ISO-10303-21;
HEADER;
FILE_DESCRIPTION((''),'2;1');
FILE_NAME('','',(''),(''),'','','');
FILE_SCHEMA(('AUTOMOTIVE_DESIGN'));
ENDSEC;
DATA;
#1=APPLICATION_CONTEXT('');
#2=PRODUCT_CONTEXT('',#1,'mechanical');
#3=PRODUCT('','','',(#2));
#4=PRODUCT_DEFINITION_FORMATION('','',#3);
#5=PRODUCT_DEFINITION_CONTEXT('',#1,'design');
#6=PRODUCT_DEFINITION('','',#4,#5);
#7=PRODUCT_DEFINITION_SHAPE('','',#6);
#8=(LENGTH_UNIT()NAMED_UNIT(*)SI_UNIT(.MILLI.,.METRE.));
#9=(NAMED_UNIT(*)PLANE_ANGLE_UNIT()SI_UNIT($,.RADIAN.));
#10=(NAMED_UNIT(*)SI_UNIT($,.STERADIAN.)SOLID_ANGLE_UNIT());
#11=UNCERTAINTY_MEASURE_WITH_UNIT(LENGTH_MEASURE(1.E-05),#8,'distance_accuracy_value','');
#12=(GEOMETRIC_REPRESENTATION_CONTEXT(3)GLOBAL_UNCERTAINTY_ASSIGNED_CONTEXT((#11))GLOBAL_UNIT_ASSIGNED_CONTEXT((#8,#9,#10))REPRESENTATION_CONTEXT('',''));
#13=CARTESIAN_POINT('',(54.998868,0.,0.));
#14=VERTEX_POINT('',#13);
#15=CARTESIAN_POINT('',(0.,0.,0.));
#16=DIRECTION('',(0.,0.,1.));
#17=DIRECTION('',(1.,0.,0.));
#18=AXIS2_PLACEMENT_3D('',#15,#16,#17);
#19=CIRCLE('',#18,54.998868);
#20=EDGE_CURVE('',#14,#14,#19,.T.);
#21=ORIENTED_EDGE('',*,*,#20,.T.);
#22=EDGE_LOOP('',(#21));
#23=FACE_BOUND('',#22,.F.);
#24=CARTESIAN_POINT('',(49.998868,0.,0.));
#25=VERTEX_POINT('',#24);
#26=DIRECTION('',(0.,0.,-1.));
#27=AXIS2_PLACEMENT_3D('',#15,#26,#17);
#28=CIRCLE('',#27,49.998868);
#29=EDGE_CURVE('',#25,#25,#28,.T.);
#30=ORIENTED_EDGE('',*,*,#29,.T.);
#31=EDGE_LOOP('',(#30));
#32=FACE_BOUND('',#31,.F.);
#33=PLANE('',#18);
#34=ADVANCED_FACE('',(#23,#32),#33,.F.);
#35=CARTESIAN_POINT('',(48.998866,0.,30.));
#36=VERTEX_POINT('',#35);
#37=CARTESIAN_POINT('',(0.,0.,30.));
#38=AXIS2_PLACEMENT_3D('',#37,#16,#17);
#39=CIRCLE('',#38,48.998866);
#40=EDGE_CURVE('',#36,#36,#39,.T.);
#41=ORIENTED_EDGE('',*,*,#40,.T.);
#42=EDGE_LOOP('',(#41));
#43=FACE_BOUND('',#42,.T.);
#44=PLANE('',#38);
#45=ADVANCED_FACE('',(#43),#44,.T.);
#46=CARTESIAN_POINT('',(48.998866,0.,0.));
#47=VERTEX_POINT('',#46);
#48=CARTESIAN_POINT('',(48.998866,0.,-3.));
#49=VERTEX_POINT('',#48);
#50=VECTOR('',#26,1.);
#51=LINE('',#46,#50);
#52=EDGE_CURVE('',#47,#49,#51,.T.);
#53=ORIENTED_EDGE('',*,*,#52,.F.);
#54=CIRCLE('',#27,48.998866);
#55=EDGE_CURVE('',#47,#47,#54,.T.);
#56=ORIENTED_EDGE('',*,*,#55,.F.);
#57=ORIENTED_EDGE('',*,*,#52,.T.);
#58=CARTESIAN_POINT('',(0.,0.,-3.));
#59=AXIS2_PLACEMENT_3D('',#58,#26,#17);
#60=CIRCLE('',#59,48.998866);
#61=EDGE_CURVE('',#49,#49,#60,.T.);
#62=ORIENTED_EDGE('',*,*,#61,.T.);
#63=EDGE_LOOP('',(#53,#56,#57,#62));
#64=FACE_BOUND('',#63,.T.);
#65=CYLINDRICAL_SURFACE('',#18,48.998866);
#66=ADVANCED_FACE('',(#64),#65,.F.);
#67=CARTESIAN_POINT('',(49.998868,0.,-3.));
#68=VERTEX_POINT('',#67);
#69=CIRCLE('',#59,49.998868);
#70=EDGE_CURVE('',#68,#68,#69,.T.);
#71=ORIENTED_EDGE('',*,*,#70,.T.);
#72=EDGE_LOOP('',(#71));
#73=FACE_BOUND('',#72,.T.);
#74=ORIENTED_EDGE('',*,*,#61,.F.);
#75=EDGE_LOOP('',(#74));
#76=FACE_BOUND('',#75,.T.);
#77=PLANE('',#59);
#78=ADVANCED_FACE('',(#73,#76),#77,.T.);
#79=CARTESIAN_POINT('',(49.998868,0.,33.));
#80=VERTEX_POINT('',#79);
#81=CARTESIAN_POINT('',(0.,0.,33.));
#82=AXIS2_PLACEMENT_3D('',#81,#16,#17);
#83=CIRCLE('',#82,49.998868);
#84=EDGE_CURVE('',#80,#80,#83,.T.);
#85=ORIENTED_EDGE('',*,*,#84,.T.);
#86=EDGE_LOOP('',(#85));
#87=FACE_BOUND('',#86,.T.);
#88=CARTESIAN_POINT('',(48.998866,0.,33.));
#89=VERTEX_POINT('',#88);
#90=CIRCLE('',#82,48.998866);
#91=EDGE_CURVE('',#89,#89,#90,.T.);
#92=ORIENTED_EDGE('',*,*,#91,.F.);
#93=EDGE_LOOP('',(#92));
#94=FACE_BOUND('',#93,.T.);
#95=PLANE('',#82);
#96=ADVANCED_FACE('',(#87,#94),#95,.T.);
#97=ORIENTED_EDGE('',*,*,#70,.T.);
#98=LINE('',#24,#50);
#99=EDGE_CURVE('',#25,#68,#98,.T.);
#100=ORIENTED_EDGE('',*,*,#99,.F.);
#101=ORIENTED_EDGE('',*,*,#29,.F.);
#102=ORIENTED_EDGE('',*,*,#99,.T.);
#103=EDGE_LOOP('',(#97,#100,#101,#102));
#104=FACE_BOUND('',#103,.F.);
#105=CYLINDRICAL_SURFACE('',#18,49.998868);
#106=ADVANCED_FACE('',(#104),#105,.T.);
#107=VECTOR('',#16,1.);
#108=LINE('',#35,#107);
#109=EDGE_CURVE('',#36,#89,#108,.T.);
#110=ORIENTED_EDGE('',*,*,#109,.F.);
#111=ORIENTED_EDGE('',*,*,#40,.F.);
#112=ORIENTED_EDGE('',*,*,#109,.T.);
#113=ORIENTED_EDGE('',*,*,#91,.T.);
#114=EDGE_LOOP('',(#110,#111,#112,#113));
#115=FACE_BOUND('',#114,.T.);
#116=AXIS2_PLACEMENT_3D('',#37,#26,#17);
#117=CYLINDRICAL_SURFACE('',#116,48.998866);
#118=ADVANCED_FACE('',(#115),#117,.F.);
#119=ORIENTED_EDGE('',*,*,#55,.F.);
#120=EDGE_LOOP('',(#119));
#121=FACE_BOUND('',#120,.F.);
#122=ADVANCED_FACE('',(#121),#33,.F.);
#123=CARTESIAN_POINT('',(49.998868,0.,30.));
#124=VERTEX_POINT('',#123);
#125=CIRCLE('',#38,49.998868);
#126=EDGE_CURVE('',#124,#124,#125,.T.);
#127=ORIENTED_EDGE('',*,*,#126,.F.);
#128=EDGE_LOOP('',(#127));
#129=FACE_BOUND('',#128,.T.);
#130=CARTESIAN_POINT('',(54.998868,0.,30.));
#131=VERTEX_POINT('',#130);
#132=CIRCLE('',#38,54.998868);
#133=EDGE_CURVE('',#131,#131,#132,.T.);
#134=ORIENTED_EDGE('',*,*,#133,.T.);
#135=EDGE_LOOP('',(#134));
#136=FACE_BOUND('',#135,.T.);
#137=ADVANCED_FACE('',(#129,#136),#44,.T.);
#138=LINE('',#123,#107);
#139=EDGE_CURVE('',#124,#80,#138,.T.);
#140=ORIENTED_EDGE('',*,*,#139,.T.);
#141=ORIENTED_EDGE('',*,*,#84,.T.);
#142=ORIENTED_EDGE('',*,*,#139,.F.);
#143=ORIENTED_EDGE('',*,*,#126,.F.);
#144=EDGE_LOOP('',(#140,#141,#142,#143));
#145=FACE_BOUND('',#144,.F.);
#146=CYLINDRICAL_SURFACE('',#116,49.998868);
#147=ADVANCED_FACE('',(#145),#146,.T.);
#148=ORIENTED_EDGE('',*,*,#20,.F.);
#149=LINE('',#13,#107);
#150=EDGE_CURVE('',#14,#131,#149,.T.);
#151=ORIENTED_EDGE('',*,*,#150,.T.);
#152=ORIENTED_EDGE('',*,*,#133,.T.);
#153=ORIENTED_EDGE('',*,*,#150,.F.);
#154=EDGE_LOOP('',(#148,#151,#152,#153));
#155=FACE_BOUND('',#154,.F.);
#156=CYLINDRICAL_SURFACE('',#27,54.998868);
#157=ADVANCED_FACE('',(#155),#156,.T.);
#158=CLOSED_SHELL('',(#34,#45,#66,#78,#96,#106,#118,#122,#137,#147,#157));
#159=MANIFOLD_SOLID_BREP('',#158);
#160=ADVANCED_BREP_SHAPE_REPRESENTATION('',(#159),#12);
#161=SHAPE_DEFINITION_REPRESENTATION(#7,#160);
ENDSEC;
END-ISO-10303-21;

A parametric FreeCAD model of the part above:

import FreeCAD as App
import Part
import Sketcher

doc = App.newDocument("Part")
body = doc.addObject("PartDesign::Body", "Body")

# Sketch on XY plane
sketch1 = doc.addObject("Sketcher::SketchObject", "Sketch")
body.addObject(sketch1)
sketch1.AttachmentSupport = (doc.XY_Plane, [""])
sketch1.MapMode = "FlatFace"
sketch1.addGeometry(Part.Circle(App.Vector(0, 0, 0), App.Vector(0, 0, 1), 55), False)
sketch1.addConstraint(Sketcher.Constraint("Coincident", 0, 3, -1, 1))
sketch1.addConstraint(Sketcher.Constraint("Diameter", 0, 109.997736))
pad1 = doc.addObject("PartDesign::Pad", "Pad")
body.addObject(pad1)
pad1.Profile = sketch1
pad1.Length = 30

# Sketch on XY plane
sketch2 = doc.addObject("Sketcher::SketchObject", "Sketch001")
body.addObject(sketch2)
sketch2.AttachmentSupport = (doc.XY_Plane, [""])
sketch2.MapMode = "FlatFace"
sketch2.addGeometry(Part.Circle(App.Vector(0, 0, 0), App.Vector(0, 0, 1), 50), False)
sketch2.addGeometry(Part.Circle(App.Vector(0, 0, 0), App.Vector(0, 0, 1), 49), False)
sketch2.addConstraint(Sketcher.Constraint("Coincident", 0, 3, -1, 1))
sketch2.addConstraint(Sketcher.Constraint("Coincident", 1, 3, -1, 1))
sketch2.addConstraint(Sketcher.Constraint("Diameter", 1, 97.997732))
sketch2.addConstraint(Sketcher.Constraint("Diameter", 0, 99.997736))
pad2 = doc.addObject("PartDesign::Pad", "Pad001")
body.addObject(pad2)
pad2.Profile = sketch2
pad2.Length = 3
pad2.Reversed = True

# Sketch on XY plane
sketch3 = doc.addObject("Sketcher::SketchObject", "Sketch002")
body.addObject(sketch3)
sketch3.AttachmentSupport = (doc.XY_Plane, [""])
sketch3.MapMode = "FlatFace"
sketch3.AttachmentOffset = App.Placement(App.Vector(0, 0, 30), App.Rotation())
sketch3.addGeometry(Part.Circle(App.Vector(0, 0, 0), App.Vector(0, 0, 1), 50), False)
sketch3.addGeometry(Part.Circle(App.Vector(0, 0, 0), App.Vector(0, 0, 1), 49), False)
sketch3.addConstraint(Sketcher.Constraint("Coincident", 0, 3, -1, 1))
sketch3.addConstraint(Sketcher.Constraint("Coincident", 1, 3, -1, 1))
sketch3.addConstraint(Sketcher.Constraint("Diameter", 1, 97.997732))
sketch3.addConstraint(Sketcher.Constraint("Diameter", 0, 99.997736))
pad3 = doc.addObject("PartDesign::Pad", "Pad002")
body.addObject(pad3)
pad3.Profile = sketch3
pad3.Length = 3

doc.recompute()
